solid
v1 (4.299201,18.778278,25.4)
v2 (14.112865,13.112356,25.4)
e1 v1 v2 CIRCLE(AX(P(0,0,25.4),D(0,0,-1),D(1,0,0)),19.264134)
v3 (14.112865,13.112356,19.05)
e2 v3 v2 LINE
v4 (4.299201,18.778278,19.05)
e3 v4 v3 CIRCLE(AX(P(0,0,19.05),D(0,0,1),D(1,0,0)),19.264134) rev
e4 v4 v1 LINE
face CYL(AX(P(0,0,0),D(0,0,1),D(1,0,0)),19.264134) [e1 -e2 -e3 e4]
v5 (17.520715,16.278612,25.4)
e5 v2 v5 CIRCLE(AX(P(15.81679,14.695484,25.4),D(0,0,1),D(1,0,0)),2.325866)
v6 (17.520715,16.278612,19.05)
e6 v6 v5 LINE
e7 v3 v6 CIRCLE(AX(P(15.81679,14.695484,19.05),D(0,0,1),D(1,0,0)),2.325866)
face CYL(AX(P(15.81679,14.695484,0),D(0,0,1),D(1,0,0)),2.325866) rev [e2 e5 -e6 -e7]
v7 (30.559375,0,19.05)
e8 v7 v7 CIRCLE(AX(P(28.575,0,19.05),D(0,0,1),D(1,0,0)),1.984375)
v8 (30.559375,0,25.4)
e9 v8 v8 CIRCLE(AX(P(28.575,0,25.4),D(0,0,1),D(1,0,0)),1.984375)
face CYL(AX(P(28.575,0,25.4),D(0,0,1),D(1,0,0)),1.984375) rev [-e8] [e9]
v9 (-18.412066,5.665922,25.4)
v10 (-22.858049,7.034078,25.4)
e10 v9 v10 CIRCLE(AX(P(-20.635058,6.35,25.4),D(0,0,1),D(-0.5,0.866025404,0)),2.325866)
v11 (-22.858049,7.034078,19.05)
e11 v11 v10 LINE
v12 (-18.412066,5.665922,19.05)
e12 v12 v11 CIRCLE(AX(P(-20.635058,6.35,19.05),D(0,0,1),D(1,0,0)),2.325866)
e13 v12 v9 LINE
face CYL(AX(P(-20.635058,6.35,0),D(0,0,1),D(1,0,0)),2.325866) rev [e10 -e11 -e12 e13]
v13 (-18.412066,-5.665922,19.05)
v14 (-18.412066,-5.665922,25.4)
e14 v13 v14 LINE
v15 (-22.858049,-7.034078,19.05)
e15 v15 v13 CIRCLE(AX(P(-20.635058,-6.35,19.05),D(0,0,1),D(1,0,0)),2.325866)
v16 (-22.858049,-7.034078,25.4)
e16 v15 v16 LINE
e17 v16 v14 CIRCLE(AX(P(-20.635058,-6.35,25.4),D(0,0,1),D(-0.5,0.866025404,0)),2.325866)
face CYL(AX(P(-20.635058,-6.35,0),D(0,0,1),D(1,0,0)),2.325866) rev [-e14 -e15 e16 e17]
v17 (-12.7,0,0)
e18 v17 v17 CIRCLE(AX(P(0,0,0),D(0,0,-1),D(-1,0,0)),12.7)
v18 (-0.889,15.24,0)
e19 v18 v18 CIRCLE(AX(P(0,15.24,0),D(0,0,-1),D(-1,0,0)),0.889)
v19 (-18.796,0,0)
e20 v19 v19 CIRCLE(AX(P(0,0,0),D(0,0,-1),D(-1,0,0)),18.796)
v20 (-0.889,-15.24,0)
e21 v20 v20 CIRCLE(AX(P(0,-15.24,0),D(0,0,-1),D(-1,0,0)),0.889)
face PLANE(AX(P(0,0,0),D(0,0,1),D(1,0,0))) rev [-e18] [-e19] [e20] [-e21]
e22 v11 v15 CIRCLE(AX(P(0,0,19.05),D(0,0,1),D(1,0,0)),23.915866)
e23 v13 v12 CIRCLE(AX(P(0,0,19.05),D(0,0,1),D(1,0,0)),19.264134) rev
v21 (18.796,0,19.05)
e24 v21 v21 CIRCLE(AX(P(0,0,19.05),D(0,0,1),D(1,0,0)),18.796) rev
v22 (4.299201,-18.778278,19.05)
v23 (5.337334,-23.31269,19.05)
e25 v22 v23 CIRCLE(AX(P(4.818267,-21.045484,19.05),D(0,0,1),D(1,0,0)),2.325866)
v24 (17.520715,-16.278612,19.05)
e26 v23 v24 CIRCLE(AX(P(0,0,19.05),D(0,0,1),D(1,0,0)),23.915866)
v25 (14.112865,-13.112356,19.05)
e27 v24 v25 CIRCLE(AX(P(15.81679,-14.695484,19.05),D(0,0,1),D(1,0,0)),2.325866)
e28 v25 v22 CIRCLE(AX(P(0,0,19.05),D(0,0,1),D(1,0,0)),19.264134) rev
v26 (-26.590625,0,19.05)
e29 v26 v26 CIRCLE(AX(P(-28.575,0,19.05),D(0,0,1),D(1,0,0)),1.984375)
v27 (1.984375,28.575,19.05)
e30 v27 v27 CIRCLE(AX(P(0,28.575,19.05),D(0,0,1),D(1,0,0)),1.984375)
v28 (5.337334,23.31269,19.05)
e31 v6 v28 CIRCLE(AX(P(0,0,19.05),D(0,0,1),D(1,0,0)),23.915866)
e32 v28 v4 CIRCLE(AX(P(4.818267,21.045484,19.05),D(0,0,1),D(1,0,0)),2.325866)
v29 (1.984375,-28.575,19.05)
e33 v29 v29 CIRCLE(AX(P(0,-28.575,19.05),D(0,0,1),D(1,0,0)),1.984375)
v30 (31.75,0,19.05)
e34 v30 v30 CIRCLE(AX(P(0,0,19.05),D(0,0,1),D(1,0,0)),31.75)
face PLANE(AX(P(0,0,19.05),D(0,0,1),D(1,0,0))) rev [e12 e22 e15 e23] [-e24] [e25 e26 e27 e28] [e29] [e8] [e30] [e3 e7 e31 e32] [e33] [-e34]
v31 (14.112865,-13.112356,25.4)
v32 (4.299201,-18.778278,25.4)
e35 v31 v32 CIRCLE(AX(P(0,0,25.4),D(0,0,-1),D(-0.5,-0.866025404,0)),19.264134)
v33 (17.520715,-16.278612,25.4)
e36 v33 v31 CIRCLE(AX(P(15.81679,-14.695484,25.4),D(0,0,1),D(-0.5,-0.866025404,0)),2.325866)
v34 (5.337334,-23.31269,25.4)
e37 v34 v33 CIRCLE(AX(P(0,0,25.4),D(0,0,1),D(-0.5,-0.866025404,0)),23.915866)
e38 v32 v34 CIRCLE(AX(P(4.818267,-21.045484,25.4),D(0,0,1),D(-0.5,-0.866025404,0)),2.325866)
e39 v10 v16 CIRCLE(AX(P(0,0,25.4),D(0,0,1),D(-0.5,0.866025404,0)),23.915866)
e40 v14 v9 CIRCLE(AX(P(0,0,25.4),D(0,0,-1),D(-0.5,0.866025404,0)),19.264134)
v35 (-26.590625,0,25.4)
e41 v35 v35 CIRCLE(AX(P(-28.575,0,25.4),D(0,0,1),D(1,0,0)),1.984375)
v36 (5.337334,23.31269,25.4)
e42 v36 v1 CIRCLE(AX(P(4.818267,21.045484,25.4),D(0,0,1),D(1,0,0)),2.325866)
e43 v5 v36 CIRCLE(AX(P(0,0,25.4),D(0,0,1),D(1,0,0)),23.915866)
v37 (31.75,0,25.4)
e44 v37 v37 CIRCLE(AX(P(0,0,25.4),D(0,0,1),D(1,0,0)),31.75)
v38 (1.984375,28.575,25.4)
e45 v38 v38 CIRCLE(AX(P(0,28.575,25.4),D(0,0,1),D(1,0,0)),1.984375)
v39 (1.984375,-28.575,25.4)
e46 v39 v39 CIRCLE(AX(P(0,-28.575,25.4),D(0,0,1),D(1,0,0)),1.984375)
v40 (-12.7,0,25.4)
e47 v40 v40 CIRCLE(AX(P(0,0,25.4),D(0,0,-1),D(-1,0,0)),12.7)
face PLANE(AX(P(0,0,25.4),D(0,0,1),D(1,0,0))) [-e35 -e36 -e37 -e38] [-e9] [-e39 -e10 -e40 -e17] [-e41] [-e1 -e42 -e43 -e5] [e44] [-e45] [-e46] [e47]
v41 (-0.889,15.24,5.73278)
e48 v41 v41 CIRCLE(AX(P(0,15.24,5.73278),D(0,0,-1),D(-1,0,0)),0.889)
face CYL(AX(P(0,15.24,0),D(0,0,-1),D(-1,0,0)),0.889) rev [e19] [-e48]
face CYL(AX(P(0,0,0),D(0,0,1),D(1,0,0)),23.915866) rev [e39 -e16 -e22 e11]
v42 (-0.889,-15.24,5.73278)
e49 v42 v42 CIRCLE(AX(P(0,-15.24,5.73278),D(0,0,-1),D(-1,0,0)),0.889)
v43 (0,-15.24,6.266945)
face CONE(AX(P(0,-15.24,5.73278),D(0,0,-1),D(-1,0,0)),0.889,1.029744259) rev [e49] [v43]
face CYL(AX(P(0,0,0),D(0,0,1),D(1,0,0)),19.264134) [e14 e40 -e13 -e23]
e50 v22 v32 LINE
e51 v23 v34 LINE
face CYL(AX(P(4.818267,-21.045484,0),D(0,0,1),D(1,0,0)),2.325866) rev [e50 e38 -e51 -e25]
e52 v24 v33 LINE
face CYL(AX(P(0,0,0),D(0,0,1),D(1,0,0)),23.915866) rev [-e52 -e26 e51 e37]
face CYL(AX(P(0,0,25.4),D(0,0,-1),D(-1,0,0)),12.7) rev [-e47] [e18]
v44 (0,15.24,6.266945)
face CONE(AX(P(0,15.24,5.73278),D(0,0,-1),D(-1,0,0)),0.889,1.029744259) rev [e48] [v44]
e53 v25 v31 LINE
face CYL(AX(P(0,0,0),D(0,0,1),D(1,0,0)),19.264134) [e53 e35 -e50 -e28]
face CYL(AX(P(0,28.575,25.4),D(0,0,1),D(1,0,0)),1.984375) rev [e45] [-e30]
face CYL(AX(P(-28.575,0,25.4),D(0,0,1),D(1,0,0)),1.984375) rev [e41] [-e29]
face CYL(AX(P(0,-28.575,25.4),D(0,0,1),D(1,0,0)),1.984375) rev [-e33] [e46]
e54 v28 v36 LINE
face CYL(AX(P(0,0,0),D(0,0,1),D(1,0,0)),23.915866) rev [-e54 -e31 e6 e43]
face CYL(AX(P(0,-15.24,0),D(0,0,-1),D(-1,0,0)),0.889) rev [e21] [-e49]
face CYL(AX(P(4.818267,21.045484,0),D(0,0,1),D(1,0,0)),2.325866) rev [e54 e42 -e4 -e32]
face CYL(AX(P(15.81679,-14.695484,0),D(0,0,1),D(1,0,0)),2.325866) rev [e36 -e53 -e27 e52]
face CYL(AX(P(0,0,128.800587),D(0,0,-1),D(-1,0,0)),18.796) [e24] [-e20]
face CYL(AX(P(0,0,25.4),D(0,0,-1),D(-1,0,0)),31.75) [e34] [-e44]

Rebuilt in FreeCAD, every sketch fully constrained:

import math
import FreeCAD as App
import Part
import Sketcher
from FreeCAD import Vector
Q = App.Units.Quantity

doc = App.newDocument("Part")
body = doc.addObject("PartDesign::Body", "Body")

sketch1 = body.newObject("Sketcher::SketchObject", "Sketch")
sketch1.AttachmentSupport = (doc.getObject("XY_Plane"), [""])
sketch1.MapMode = "FlatFace"
sketch1.addGeometry(Part.Circle(Vector(0, 0, 0), Vector(0, 0, 1), 32), False)
sketch1.addConstraint(Sketcher.Constraint("Coincident", 0, 3, -1, 1))
sketch1.addConstraint(Sketcher.Constraint("Diameter", 0, Q("2.5 in")))
pad1 = body.newObject("PartDesign::Pad", "Pad")
pad1.Profile = sketch1
pad1.Length = Q("1 in")

sketch2 = body.newObject("Sketcher::SketchObject", "Sketch001")
sketch2.AttachmentSupport = (doc.getObject("XY_Plane"), [""])
sketch2.MapMode = "FlatFace"
sketch2.addGeometry(Part.LineSegment(Vector(42, 42, 0), Vector(42, -42, 0)), False)
sketch2.addGeometry(Part.LineSegment(Vector(42, -42, 0), Vector(-42, -42, 0)), False)
sketch2.addGeometry(Part.LineSegment(Vector(-42, -42, 0), Vector(-42, 42, 0)), False)
sketch2.addGeometry(Part.LineSegment(Vector(-42, 42, 0), Vector(42, 42, 0)), False)
sketch2.addGeometry(Part.Circle(Vector(0, 0, 0), Vector(0, 0, 1), 19), False)
sketch2.addConstraint(Sketcher.Constraint("Coincident", 0, 2, 1, 1))
sketch2.addConstraint(Sketcher.Constraint("Coincident", 1, 2, 2, 1))
sketch2.addConstraint(Sketcher.Constraint("Coincident", 2, 2, 3, 1))
sketch2.addConstraint(Sketcher.Constraint("Coincident", 3, 2, 0, 1))
sketch2.addConstraint(Sketcher.Constraint("Vertical", 0))
sketch2.addConstraint(Sketcher.Constraint("Horizontal", 1))
sketch2.addConstraint(Sketcher.Constraint("Vertical", 2))
sketch2.addConstraint(Sketcher.Constraint("Horizontal", 3))
sketch2.addConstraint(Sketcher.Constraint("Coincident", 4, 3, -1, 1))
sketch2.addConstraint(Sketcher.Constraint("Symmetric", 0, 2, 2, 2, -1, 1))
sketch2.addConstraint(Sketcher.Constraint("Equal", 3, 0))
sketch2.addConstraint(Sketcher.Constraint("Diameter", 4, Q("1.48 in")))
sketch2.addConstraint(Sketcher.Constraint("DistanceX", 1, 2, 1, 1, 84.166))
pocket1 = body.newObject("PartDesign::Pocket", "Pocket")
pocket1.Profile = sketch2
pocket1.Length = Q("0.75 in")
pocket1.Reversed = True

sketch3 = body.newObject("Sketcher::SketchObject", "Sketch002")
sketch3.AttachmentSupport = (doc.getObject("XY_Plane"), [""])
sketch3.MapMode = "FlatFace"
sketch3.addGeometry(Part.Circle(Vector(0, 0, 0), Vector(0, 0, 1), 13), False)
sketch3.addConstraint(Sketcher.Constraint("Coincident", 0, 3, -1, 1))
sketch3.addConstraint(Sketcher.Constraint("Diameter", 0, Q("1 in")))
pocket2 = body.newObject("PartDesign::Pocket", "Pocket001")
pocket2.Profile = sketch3
pocket2.Type = "ThroughAll"
pocket2.Reversed = True

sketch4 = body.newObject("Sketcher::SketchObject", "Sketch003")
sketch4.AttachmentSupport = (doc.getObject("XY_Plane"), [""])
sketch4.MapMode = "FlatFace"
sketch4.addGeometry(Part.Circle(Vector(0, 15.2, 0), Vector(0, 0, 1), 0.9), False)
sketch4.addGeometry(Part.Circle(Vector(0, -15.2, 0), Vector(0, 0, 1), 0.9), False)
sketch4.addConstraint(Sketcher.Constraint("Equal", 0, 1))
sketch4.addConstraint(Sketcher.Constraint("Symmetric", 0, 3, 1, 3, -1, 1))
sketch4.addConstraint(Sketcher.Constraint("PointOnObject", 0, 3, -2))
sketch4.addConstraint(Sketcher.Constraint("Diameter", 0, Q("0.07 in")))
sketch4.addConstraint(Sketcher.Constraint("DistanceY", -1, 1, 0, 3, Q("0.6 in")))
doc.recompute()
hole = body.newObject("PartDesign::Hole", "Hole")
hole.Profile = sketch4
hole.ThreadType = "None"
hole.Diameter = Q("0.07 in")
hole.DepthType = "Dimension"
hole.Depth = Q("0.2257 in")
hole.DrillPoint = "Angled"
hole.DrillPointAngle = 118
hole.Reversed = True

sketch5 = body.newObject("Sketcher::SketchObject", "Sketch004")
sketch5.AttachmentSupport = (doc.getObject("XY_Plane"), [""])
sketch5.MapMode = "FlatFace"
sketch5.AttachmentOffset = App.Placement(Vector(0, 0, 1 * 25.4), App.Rotation())
sketch5.addGeometry(Part.Circle(Vector(0, 28.6, 0), Vector(0, 0, 1), 2), False)
sketch5.addGeometry(Part.Circle(Vector(28.6, 0, 0), Vector(0, 0, 1), 2), False)
sketch5.addConstraint(Sketcher.Constraint("Equal", 0, 1))
sketch5.addConstraint(Sketcher.Constraint("PointOnObject", 0, 3, -2))
sketch5.addConstraint(Sketcher.Constraint("PointOnObject", 1, 3, -1))
sketch5.addConstraint(Sketcher.Constraint("Diameter", 0, Q("0.15625 in")))
sketch5.addConstraint(Sketcher.Constraint("DistanceY", -1, 1, 0, 3, Q("1.125 in")))
sketch5.addConstraint(Sketcher.Constraint("DistanceX", -1, 1, 1, 3, Q("1.125 in")))
doc.recompute()
hole2 = body.newObject("PartDesign::Hole", "Hole001")
hole2.Profile = sketch5
hole2.ThreadType = "None"
hole2.Diameter = Q("0.15625 in")
hole2.DepthType = "ThroughAll"
doc.recompute()

mirrored = body.newObject("PartDesign::Mirrored", "Mirrored")
mirrored.Originals = [hole2]
mirrored.MirrorPlane = (doc.getObject("XZ_Plane"), [""])
body.Tip = mirrored

sketch6 = body.newObject("Sketcher::SketchObject", "Sketch005")
sketch6.AttachmentSupport = (doc.getObject("XY_Plane"), [""])
sketch6.MapMode = "FlatFace"
sketch6.AttachmentOffset = App.Placement(Vector(0, 0, 1 * 25.4), App.Rotation())
sketch6.addGeometry(Part.Circle(Vector(0, -28.6, 0), Vector(0, 0, 1), 2), False)
sketch6.addGeometry(Part.Circle(Vector(-28.6, 0, 0), Vector(0, 0, 1), 2), False)
sketch6.addConstraint(Sketcher.Constraint("Equal", 0, 1))
sketch6.addConstraint(Sketcher.Constraint("PointOnObject", 0, 3, -2))
sketch6.addConstraint(Sketcher.Constraint("PointOnObject", 1, 3, -1))
sketch6.addConstraint(Sketcher.Constraint("Diameter", 0, Q("0.15625 in")))
sketch6.addConstraint(Sketcher.Constraint("DistanceY", 0, 3, -1, 1, Q("1.125 in")))
sketch6.addConstraint(Sketcher.Constraint("DistanceX", 1, 3, -1, 1, Q("1.125 in")))
doc.recompute()
hole3 = body.newObject("PartDesign::Hole", "Hole002")
hole3.Profile = sketch6
hole3.ThreadType = "None"
hole3.Diameter = Q("0.15625 in")
hole3.DepthType = "ThroughAll"

sketch7 = body.newObject("Sketcher::SketchObject", "Sketch006")
sketch7.AttachmentSupport = (doc.getObject("XY_Plane"), [""])
sketch7.MapMode = "FlatFace"
sketch7.AttachmentOffset = App.Placement(Vector(0, 0, 1 * 25.4), App.Rotation())
sketch7.addGeometry(Part.Circle(Vector(0, 28.6, 0), Vector(0, 0, 1), 2), False)
sketch7.addGeometry(Part.Circle(Vector(-28.6, 0, 0), Vector(0, 0, 1), 2), False)
sketch7.addConstraint(Sketcher.Constraint("Equal", 0, 1))
sketch7.addConstraint(Sketcher.Constraint("PointOnObject", 0, 3, -2))
sketch7.addConstraint(Sketcher.Constraint("PointOnObject", 1, 3, -1))
sketch7.addConstraint(Sketcher.Constraint("Diameter", 0, Q("0.15625 in")))
sketch7.addConstraint(Sketcher.Constraint("DistanceY", -1, 1, 0, 3, Q("1.125 in")))
sketch7.addConstraint(Sketcher.Constraint("DistanceX", 1, 3, -1, 1, Q("1.125 in")))
doc.recompute()
hole4 = body.newObject("PartDesign::Hole", "Hole003")
hole4.Profile = sketch7
hole4.ThreadType = "None"
hole4.Diameter = Q("0.15625 in")
hole4.DepthType = "ThroughAll"

sketch8 = body.newObject("Sketcher::SketchObject", "Sketch007")
sketch8.AttachmentSupport = (doc.getObject("XY_Plane"), [""])
sketch8.MapMode = "FlatFace"
sketch8.AttachmentOffset = App.Placement(Vector(0, 0, 1 * 25.4), App.Rotation())
sketch8.addGeometry(Part.ArcOfCircle(Part.Circle(Vector(0, 0, 0), Vector(0, 0, 1), 23.9), math.radians(43), math.radians(77)), False)
sketch8.addGeometry(Part.ArcOfCircle(Part.Circle(Vector(4.8, 21, 0), Vector(0, 0, 1), 2.3), math.radians(77), math.radians(257)), False)
sketch8.addGeometry(Part.ArcOfCircle(Part.Circle(Vector(0, 0, 0), Vector(0, 0, 1), 19.3), math.radians(43), math.radians(77)), False)
sketch8.addGeometry(Part.ArcOfCircle(Part.Circle(Vector(15.8, 14.7, 0), Vector(0, 0, 1), 2.3), math.radians(-137), math.radians(43)), False)
sketch8.addConstraint(Sketcher.Constraint("Tangent", 0, 2, 1, 1))
sketch8.addConstraint(Sketcher.Constraint("Tangent", 1, 2, 2, 2))
sketch8.addConstraint(Sketcher.Constraint("Tangent", 2, 1, 3, 1))
sketch8.addConstraint(Sketcher.Constraint("Tangent", 3, 2, 0, 1))
sketch8.addConstraint(Sketcher.Constraint("Coincident", 0, 3, -1, 1))
sketch8.addConstraint(Sketcher.Constraint("Coincident", 2, 3, -1, 1))
sketch8.addConstraint(Sketcher.Constraint("DistanceY", 3, 3, 1, 3, Q("0.25 in")))
sketch8.addConstraint(Sketcher.Constraint("Radius", 0, 23.915866))
sketch8.addConstraint(Sketcher.Constraint("Radius", 1, 2.325866))
sketch8.addConstraint(Sketcher.Constraint("DistanceX", -1, 1, 1, 2, 4.299201))
pocket3 = body.newObject("PartDesign::Pocket", "Pocket002")
pocket3.Profile = sketch8
pocket3.Type = "ThroughAll"
doc.recompute()

polarpattern = body.newObject("PartDesign::PolarPattern", "PolarPattern")
polarpattern.Originals = [pocket3]
polarpattern.Axis = (doc.getObject("Z_Axis"), [""])
polarpattern.Angle = 360
polarpattern.Occurrences = 3
body.Tip = polarpattern

sketch9 = body.newObject("Sketcher::SketchObject", "Sketch008")
sketch9.AttachmentSupport = (doc.getObject("XY_Plane"), [""])
sketch9.MapMode = "FlatFace"
sketch9.addGeometry(Part.Circle(Vector(0, 0, 0), Vector(0, 0, 1), 10), False)
sketch9.addGeometry(Part.Circle(Vector(0, 0, 0), Vector(0, 0, 1), 8), False)
sketch9.addConstraint(Sketcher.Constraint("Coincident", 0, 3, -1, 1))
sketch9.addConstraint(Sketcher.Constraint("Coincident", 1, 3, -1, 1))
sketch9.addConstraint(Sketcher.Constraint("Diameter", 0, Q("0.8 in")))
sketch9.addConstraint(Sketcher.Constraint("Diameter", 1, Q("0.625 in")))
pocket4 = body.newObject("PartDesign::Pocket", "Pocket003")
pocket4.Profile = sketch9
pocket4.Length = Q("0.125 in")
pocket4.Reversed = True

doc.recompute()
